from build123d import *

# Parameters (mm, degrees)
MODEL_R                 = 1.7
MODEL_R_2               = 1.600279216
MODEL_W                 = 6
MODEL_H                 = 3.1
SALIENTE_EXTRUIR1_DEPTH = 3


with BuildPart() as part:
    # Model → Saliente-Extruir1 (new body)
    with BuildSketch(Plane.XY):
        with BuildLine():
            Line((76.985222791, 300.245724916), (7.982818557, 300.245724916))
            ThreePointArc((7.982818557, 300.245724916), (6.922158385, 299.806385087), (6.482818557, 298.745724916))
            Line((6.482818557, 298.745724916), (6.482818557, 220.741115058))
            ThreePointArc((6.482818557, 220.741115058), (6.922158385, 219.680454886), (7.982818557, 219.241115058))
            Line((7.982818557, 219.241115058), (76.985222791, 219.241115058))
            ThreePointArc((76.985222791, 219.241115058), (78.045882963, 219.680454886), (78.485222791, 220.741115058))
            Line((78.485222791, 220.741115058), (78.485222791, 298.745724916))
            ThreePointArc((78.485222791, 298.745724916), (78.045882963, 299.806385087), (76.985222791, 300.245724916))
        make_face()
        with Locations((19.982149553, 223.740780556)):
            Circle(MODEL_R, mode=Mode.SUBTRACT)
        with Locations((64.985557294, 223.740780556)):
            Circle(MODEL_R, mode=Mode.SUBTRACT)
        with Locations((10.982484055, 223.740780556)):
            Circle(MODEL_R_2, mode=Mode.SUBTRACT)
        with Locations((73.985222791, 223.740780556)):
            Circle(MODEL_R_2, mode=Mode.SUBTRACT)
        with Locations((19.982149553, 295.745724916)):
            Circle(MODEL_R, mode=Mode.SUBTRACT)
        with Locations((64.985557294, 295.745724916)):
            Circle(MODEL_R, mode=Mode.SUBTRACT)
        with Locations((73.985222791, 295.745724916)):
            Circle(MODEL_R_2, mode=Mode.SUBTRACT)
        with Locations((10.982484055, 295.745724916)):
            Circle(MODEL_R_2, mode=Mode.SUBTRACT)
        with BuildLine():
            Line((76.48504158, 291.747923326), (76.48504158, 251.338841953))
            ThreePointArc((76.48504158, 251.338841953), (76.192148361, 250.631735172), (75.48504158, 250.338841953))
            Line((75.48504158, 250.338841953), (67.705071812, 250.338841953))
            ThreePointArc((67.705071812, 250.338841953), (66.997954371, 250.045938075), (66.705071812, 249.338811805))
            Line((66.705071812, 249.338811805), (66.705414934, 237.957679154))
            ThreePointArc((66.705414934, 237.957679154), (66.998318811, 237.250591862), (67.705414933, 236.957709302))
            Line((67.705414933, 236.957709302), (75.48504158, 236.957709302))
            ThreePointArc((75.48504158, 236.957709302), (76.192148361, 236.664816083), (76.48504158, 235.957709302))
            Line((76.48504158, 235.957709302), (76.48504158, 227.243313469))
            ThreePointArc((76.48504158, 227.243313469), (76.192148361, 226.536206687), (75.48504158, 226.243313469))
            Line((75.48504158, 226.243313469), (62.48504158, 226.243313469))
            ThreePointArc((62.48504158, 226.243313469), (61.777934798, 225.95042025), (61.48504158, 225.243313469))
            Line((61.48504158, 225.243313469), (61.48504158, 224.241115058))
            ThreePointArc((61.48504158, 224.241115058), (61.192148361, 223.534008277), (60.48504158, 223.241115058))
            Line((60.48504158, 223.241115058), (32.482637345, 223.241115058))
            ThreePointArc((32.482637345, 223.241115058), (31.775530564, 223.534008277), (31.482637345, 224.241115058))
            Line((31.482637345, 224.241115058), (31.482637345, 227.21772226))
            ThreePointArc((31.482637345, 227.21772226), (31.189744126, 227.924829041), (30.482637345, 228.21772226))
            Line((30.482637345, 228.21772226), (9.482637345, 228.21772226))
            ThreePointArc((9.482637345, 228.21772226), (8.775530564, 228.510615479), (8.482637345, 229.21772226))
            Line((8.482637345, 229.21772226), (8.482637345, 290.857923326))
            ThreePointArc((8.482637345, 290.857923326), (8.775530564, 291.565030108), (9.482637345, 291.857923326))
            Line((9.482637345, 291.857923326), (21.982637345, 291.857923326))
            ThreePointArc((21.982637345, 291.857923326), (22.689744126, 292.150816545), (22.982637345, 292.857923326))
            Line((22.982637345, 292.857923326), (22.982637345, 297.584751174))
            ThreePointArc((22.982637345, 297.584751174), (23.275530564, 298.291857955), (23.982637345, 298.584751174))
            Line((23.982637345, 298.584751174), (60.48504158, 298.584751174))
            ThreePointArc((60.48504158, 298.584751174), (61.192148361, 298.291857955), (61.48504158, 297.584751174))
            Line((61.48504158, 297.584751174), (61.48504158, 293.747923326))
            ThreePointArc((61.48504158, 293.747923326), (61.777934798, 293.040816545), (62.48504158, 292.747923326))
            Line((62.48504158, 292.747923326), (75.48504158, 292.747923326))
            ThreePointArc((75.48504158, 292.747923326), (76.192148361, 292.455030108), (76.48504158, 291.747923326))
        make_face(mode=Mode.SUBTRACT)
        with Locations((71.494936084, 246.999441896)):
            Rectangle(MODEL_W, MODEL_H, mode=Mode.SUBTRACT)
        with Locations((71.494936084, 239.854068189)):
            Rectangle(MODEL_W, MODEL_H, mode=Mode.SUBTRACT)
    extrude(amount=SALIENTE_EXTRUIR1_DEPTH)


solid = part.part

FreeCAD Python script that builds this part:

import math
import FreeCAD as App
import Part
import Sketcher

V = App.Vector
Q = App.Units.Quantity


def add_polygon(sketch, points):
    """Adds a closed chain of lines whose ends are joined by coincident constraints."""
    first, n = sketch.GeometryCount, len(points)
    for a, b in zip(points, points[1:] + points[:1]):
        sketch.addGeometry(Part.LineSegment(App.Vector(*a, 0), App.Vector(*b, 0)), False)
    for i in range(n):
        sketch.addConstraint(Sketcher.Constraint("Coincident", first + i, 2, first + (i + 1) % n, 1))

doc = App.newDocument("Part")
body = doc.addObject("PartDesign::Body", "Body")

# Sketch on XY plane
sketch1 = body.newObject("Sketcher::SketchObject", "Sketch")
sketch1.AttachmentSupport = (doc.getObject("XY_Plane"), [""])
sketch1.MapMode = "FlatFace"
sketch1.addGeometry(Part.LineSegment(V(76.985223, 300.245725, 0), V(7.982819, 300.245725, 0)), False)  # 0
sketch1.addGeometry(Part.ArcOfCircle(Part.Circle(V(7.982819, 298.745725, 0), V(0, 0, 1), 1.5), math.radians(90), math.radians(180)), False)  # 1
sketch1.addGeometry(Part.LineSegment(V(6.482819, 298.745725, 0), V(6.482819, 220.741115, 0)), False)  # 2
sketch1.addGeometry(Part.ArcOfCircle(Part.Circle(V(7.982819, 220.741115, 0), V(0, 0, 1), 1.5), math.radians(180), math.radians(270)), False)  # 3
sketch1.addGeometry(Part.LineSegment(V(7.982819, 219.241115, 0), V(76.985223, 219.241115, 0)), False)  # 4
sketch1.addGeometry(Part.ArcOfCircle(Part.Circle(V(76.985223, 220.741115, 0), V(0, 0, 1), 1.5), math.radians(-90), math.radians(0)), False)  # 5
sketch1.addGeometry(Part.LineSegment(V(78.485223, 220.741115, 0), V(78.485223, 298.745725, 0)), False)  # 6
sketch1.addGeometry(Part.ArcOfCircle(Part.Circle(V(76.985223, 298.745725, 0), V(0, 0, 1), 1.5), math.radians(0), math.radians(90)), False)  # 7
sketch1.addGeometry(Part.Circle(V(10.982484, 223.740781, 0), V(0, 0, 1), 1.600279), False)  # 8
sketch1.addGeometry(Part.Circle(V(19.98215, 223.740781, 0), V(0, 0, 1), 1.7), False)  # 9
sketch1.addGeometry(Part.Circle(V(64.985557, 223.740781, 0), V(0, 0, 1), 1.7), False)  # 10
sketch1.addGeometry(Part.Circle(V(73.985223, 223.740781, 0), V(0, 0, 1), 1.600279), False)  # 11
add_polygon(sketch1, [(74.494936, 238.304068), (68.494936, 238.304068), (68.494936, 241.404068), (74.494936, 241.404068)])  # lines 12-15
add_polygon(sketch1, [(74.494936, 245.449442), (68.494936, 245.449442), (68.494936, 248.549442), (74.494936, 248.549442)])  # lines 16-19
sketch1.addGeometry(Part.Circle(V(10.982484, 295.745725, 0), V(0, 0, 1), 1.600279), False)  # 20
sketch1.addGeometry(Part.Circle(V(19.98215, 295.745725, 0), V(0, 0, 1), 1.7), False)  # 21
sketch1.addGeometry(Part.ArcOfCircle(Part.Circle(V(75.485042, 291.747923, 0), V(0, 0, 1), 1), math.radians(0), math.radians(90)), False)  # 22
sketch1.addGeometry(Part.LineSegment(V(76.485042, 291.747923, 0), V(76.485042, 251.338842, 0)), False)  # 23
sketch1.addGeometry(Part.ArcOfCircle(Part.Circle(V(75.485042, 251.338842, 0), V(0, 0, 1), 1), math.radians(-90), math.radians(0)), False)  # 24
sketch1.addGeometry(Part.LineSegment(V(75.485042, 250.338842, 0), V(67.705072, 250.338842, 0)), False)  # 25
sketch1.addGeometry(Part.ArcOfCircle(Part.Circle(V(67.705072, 249.338842, 0), V(0, 0, 1), 1), math.radians(90), math.radians(180.001727)), False)  # 26
sketch1.addGeometry(Part.LineSegment(V(66.705072, 249.338812, 0), V(66.705415, 237.957679, 0)), False)  # 27
sketch1.addGeometry(Part.ArcOfCircle(Part.Circle(V(67.705415, 237.957709, 0), V(0, 0, 1), 1), math.radians(-179.998273), math.radians(-90)), False)  # 28
sketch1.addGeometry(Part.LineSegment(V(67.705415, 236.957709, 0), V(75.485042, 236.957709, 0)), False)  # 29
sketch1.addGeometry(Part.ArcOfCircle(Part.Circle(V(75.485042, 235.957709, 0), V(0, 0, 1), 1), math.radians(0), math.radians(90)), False)  # 30
sketch1.addGeometry(Part.LineSegment(V(76.485042, 235.957709, 0), V(76.485042, 227.243313, 0)), False)  # 31
sketch1.addGeometry(Part.ArcOfCircle(Part.Circle(V(75.485042, 227.243313, 0), V(0, 0, 1), 1), math.radians(-90), math.radians(0)), False)  # 32
sketch1.addGeometry(Part.LineSegment(V(75.485042, 226.243313, 0), V(62.485042, 226.243313, 0)), False)  # 33
sketch1.addGeometry(Part.ArcOfCircle(Part.Circle(V(62.485042, 225.243313, 0), V(0, 0, 1), 1), math.radians(90), math.radians(180)), False)  # 34
sketch1.addGeometry(Part.LineSegment(V(61.485042, 225.243313, 0), V(61.485042, 224.241115, 0)), False)  # 35
sketch1.addGeometry(Part.ArcOfCircle(Part.Circle(V(60.485042, 224.241115, 0), V(0, 0, 1), 1), math.radians(-90), math.radians(0)), False)  # 36
sketch1.addGeometry(Part.LineSegment(V(60.485042, 223.241115, 0), V(32.482637, 223.241115, 0)), False)  # 37
sketch1.addGeometry(Part.ArcOfCircle(Part.Circle(V(32.482637, 224.241115, 0), V(0, 0, 1), 1), math.radians(-180), math.radians(-90)), False)  # 38
sketch1.addGeometry(Part.LineSegment(V(31.482637, 224.241115, 0), V(31.482637, 227.217722, 0)), False)  # 39
sketch1.addGeometry(Part.ArcOfCircle(Part.Circle(V(30.482637, 227.217722, 0), V(0, 0, 1), 1), math.radians(0), math.radians(90)), False)  # 40
sketch1.addGeometry(Part.LineSegment(V(30.482637, 228.217722, 0), V(9.482637, 228.217722, 0)), False)  # 41
sketch1.addGeometry(Part.ArcOfCircle(Part.Circle(V(9.482637, 229.217722, 0), V(0, 0, 1), 1), math.radians(-180), math.radians(-90)), False)  # 42
sketch1.addGeometry(Part.LineSegment(V(8.482637, 229.217722, 0), V(8.482637, 290.857923, 0)), False)  # 43
sketch1.addGeometry(Part.ArcOfCircle(Part.Circle(V(9.482637, 290.857923, 0), V(0, 0, 1), 1), math.radians(90), math.radians(180)), False)  # 44
sketch1.addGeometry(Part.LineSegment(V(9.482637, 291.857923, 0), V(21.982637, 291.857923, 0)), False)  # 45
sketch1.addGeometry(Part.ArcOfCircle(Part.Circle(V(21.982637, 292.857923, 0), V(0, 0, 1), 1), math.radians(-90), math.radians(0)), False)  # 46
sketch1.addGeometry(Part.LineSegment(V(22.982637, 292.857923, 0), V(22.982637, 297.584751, 0)), False)  # 47
sketch1.addGeometry(Part.ArcOfCircle(Part.Circle(V(23.982637, 297.584751, 0), V(0, 0, 1), 1), math.radians(90), math.radians(180)), False)  # 48
sketch1.addGeometry(Part.LineSegment(V(23.982637, 298.584751, 0), V(60.485042, 298.584751, 0)), False)  # 49
sketch1.addGeometry(Part.ArcOfCircle(Part.Circle(V(60.485042, 297.584751, 0), V(0, 0, 1), 1), math.radians(0), math.radians(90)), False)  # 50
sketch1.addGeometry(Part.LineSegment(V(61.485042, 297.584751, 0), V(61.485042, 293.747923, 0)), False)  # 51
sketch1.addGeometry(Part.ArcOfCircle(Part.Circle(V(62.485042, 293.747923, 0), V(0, 0, 1), 1), math.radians(180), math.radians(270)), False)  # 52
sketch1.addGeometry(Part.LineSegment(V(62.485042, 292.747923, 0), V(75.485042, 292.747923, 0)), False)  # 53
sketch1.addGeometry(Part.Circle(V(64.985557, 295.745725, 0), V(0, 0, 1), 1.7), False)  # 54
sketch1.addGeometry(Part.Circle(V(73.985223, 295.745725, 0), V(0, 0, 1), 1.600279), False)  # 55
sketch1.addConstraint(Sketcher.Constraint("Tangent", 0, 2, 1, 1))
sketch1.addConstraint(Sketcher.Constraint("Tangent", 1, 2, 2, 1))
sketch1.addConstraint(Sketcher.Constraint("Tangent", 2, 2, 3, 1))
sketch1.addConstraint(Sketcher.Constraint("Tangent", 3, 2, 4, 1))
sketch1.addConstraint(Sketcher.Constraint("Tangent", 4, 2, 5, 1))
sketch1.addConstraint(Sketcher.Constraint("Tangent", 5, 2, 6, 1))
sketch1.addConstraint(Sketcher.Constraint("Tangent", 6, 2, 7, 1))
sketch1.addConstraint(Sketcher.Constraint("Tangent", 7, 2, 0, 1))
sketch1.addConstraint(Sketcher.Constraint("Tangent", 22, 1, 23, 1))
sketch1.addConstraint(Sketcher.Constraint("Tangent", 23, 2, 24, 2))
sketch1.addConstraint(Sketcher.Constraint("Tangent", 24, 1, 25, 1))
sketch1.addConstraint(Sketcher.Constraint("Tangent", 25, 2, 26, 1))
sketch1.addConstraint(Sketcher.Constraint("Tangent", 26, 2, 27, 1))
sketch1.addConstraint(Sketcher.Constraint("Tangent", 27, 2, 28, 1))
sketch1.addConstraint(Sketcher.Constraint("Tangent", 28, 2, 29, 1))
sketch1.addConstraint(Sketcher.Constraint("Tangent", 29, 2, 30, 2))
sketch1.addConstraint(Sketcher.Constraint("Tangent", 30, 1, 31, 1))
sketch1.addConstraint(Sketcher.Constraint("Tangent", 31, 2, 32, 2))
sketch1.addConstraint(Sketcher.Constraint("Tangent", 32, 1, 33, 1))
sketch1.addConstraint(Sketcher.Constraint("Tangent", 33, 2, 34, 1))
sketch1.addConstraint(Sketcher.Constraint("Tangent", 34, 2, 35, 1))
sketch1.addConstraint(Sketcher.Constraint("Tangent", 35, 2, 36, 2))
sketch1.addConstraint(Sketcher.Constraint("Tangent", 36, 1, 37, 1))
sketch1.addConstraint(Sketcher.Constraint("Tangent", 37, 2, 38, 2))
sketch1.addConstraint(Sketcher.Constraint("Tangent", 38, 1, 39, 1))
sketch1.addConstraint(Sketcher.Constraint("Tangent", 39, 2, 40, 1))
sketch1.addConstraint(Sketcher.Constraint("Tangent", 40, 2, 41, 1))
sketch1.addConstraint(Sketcher.Constraint("Tangent", 41, 2, 42, 2))
sketch1.addConstraint(Sketcher.Constraint("Tangent", 42, 1, 43, 1))
sketch1.addConstraint(Sketcher.Constraint("Tangent", 43, 2, 44, 2))
sketch1.addConstraint(Sketcher.Constraint("Tangent", 44, 1, 45, 1))
sketch1.addConstraint(Sketcher.Constraint("Tangent", 45, 2, 46, 1))
sketch1.addConstraint(Sketcher.Constraint("Tangent", 46, 2, 47, 1))
sketch1.addConstraint(Sketcher.Constraint("Tangent", 47, 2, 48, 2))
sketch1.addConstraint(Sketcher.Constraint("Tangent", 48, 1, 49, 1))
sketch1.addConstraint(Sketcher.Constraint("Tangent", 49, 2, 50, 2))
sketch1.addConstraint(Sketcher.Constraint("Tangent", 50, 1, 51, 1))
sketch1.addConstraint(Sketcher.Constraint("Tangent", 51, 2, 52, 1))
sketch1.addConstraint(Sketcher.Constraint("Tangent", 52, 2, 53, 1))
sketch1.addConstraint(Sketcher.Constraint("Tangent", 53, 2, 22, 2))
sketch1.addConstraint(Sketcher.Constraint("Horizontal", 0))
sketch1.addConstraint(Sketcher.Constraint("Vertical", 2))
sketch1.addConstraint(Sketcher.Constraint("Horizontal", 4))
sketch1.addConstraint(Sketcher.Constraint("Vertical", 6))
sketch1.addConstraint(Sketcher.Constraint("Horizontal", 12))
sketch1.addConstraint(Sketcher.Constraint("Vertical", 13))
sketch1.addConstraint(Sketcher.Constraint("Horizontal", 14))
sketch1.addConstraint(Sketcher.Constraint("Vertical", 15))
sketch1.addConstraint(Sketcher.Constraint("Horizontal", 16))
sketch1.addConstraint(Sketcher.Constraint("Vertical", 17))
sketch1.addConstraint(Sketcher.Constraint("Horizontal", 18))
sketch1.addConstraint(Sketcher.Constraint("Vertical", 19))
sketch1.addConstraint(Sketcher.Constraint("Vertical", 23))
sketch1.addConstraint(Sketcher.Constraint("Horizontal", 25))
sketch1.addConstraint(Sketcher.Constraint("Horizontal", 29))
sketch1.addConstraint(Sketcher.Constraint("Vertical", 31))
sketch1.addConstraint(Sketcher.Constraint("Horizontal", 33))
sketch1.addConstraint(Sketcher.Constraint("Vertical", 35))
sketch1.addConstraint(Sketcher.Constraint("Horizontal", 37))
sketch1.addConstraint(Sketcher.Constraint("Vertical", 39))
sketch1.addConstraint(Sketcher.Constraint("Horizontal", 41))
sketch1.addConstraint(Sketcher.Constraint("Vertical", 43))
sketch1.addConstraint(Sketcher.Constraint("Horizontal", 45))
sketch1.addConstraint(Sketcher.Constraint("Vertical", 47))
sketch1.addConstraint(Sketcher.Constraint("Horizontal", 49))
sketch1.addConstraint(Sketcher.Constraint("Vertical", 51))
sketch1.addConstraint(Sketcher.Constraint("Horizontal", 53))
sketch1.addConstraint(Sketcher.Constraint("Equal", 1, 3))
sketch1.addConstraint(Sketcher.Constraint("Equal", 3, 5))
sketch1.addConstraint(Sketcher.Constraint("Equal", 5, 7))
sketch1.addConstraint(Sketcher.Constraint("Equal", 9, 10))
sketch1.addConstraint(Sketcher.Constraint("Equal", 8, 11))
sketch1.addConstraint(Sketcher.Constraint("Equal", 11, 20))
sketch1.addConstraint(Sketcher.Constraint("Equal", 10, 21))
sketch1.addConstraint(Sketcher.Constraint("Equal", 22, 24))
sketch1.addConstraint(Sketcher.Constraint("Equal", 24, 26))
sketch1.addConstraint(Sketcher.Constraint("Equal", 26, 28))
sketch1.addConstraint(Sketcher.Constraint("Equal", 28, 30))
sketch1.addConstraint(Sketcher.Constraint("Equal", 30, 32))
sketch1.addConstraint(Sketcher.Constraint("Equal", 32, 34))
sketch1.addConstraint(Sketcher.Constraint("Equal", 34, 36))
sketch1.addConstraint(Sketcher.Constraint("Equal", 36, 38))
sketch1.addConstraint(Sketcher.Constraint("Equal", 38, 40))
sketch1.addConstraint(Sketcher.Constraint("Equal", 40, 42))
sketch1.addConstraint(Sketcher.Constraint("Equal", 42, 44))
sketch1.addConstraint(Sketcher.Constraint("Equal", 44, 46))
sketch1.addConstraint(Sketcher.Constraint("Equal", 46, 48))
sketch1.addConstraint(Sketcher.Constraint("Equal", 48, 50))
sketch1.addConstraint(Sketcher.Constraint("Equal", 50, 52))
sketch1.addConstraint(Sketcher.Constraint("Equal", 21, 54))
sketch1.addConstraint(Sketcher.Constraint("Equal", 20, 55))
sketch1.addConstraint(Sketcher.Constraint("Horizontal", 8, 3, 9, 3))
sketch1.addConstraint(Sketcher.Constraint("Horizontal", 9, 3, 10, 3))
sketch1.addConstraint(Sketcher.Constraint("Horizontal", 10, 3, 11, 3))
sketch1.addConstraint(Sketcher.Constraint("Horizontal", 20, 3, 21, 3))
sketch1.addConstraint(Sketcher.Constraint("Horizontal", 21, 3, 54, 3))
sketch1.addConstraint(Sketcher.Constraint("Horizontal", 54, 3, 55, 3))
sketch1.addConstraint(Sketcher.Constraint("Vertical", 8, 3, 20, 3))
sketch1.addConstraint(Sketcher.Constraint("Vertical", 9, 3, 21, 3))
sketch1.addConstraint(Sketcher.Constraint("Vertical", 24, 3, 30, 3))
sketch1.addConstraint(Sketcher.Constraint("Vertical", 36, 3, 50, 3))
sketch1.addConstraint(Sketcher.Constraint("Vertical", 10, 3, 54, 3))
sketch1.addConstraint(Sketcher.Constraint("Vertical", 11, 3, 55, 3))
sketch1.addConstraint(Sketcher.Constraint("Vertical", 13, 2, 16, 2))
sketch1.addConstraint(Sketcher.Constraint("Vertical", 15, 2, 18, 2))
sketch1.addConstraint(Sketcher.Constraint("Equal", 15, 17))
sketch1.addConstraint(Sketcher.Constraint("Radius", 22, Q("1 mm")))
sketch1.addConstraint(Sketcher.Constraint("Diameter", 9, Q("3.4 mm")))
sketch1.addConstraint(Sketcher.Constraint("Radius", 1, Q("1.5 mm")))
sketch1.addConstraint(Sketcher.Constraint("DistanceX", 12, 2, 12, 1, Q("6 mm")))
sketch1.addConstraint(Sketcher.Constraint("DistanceX", 33, 2, 33, 1, Q("13 mm")))
sketch1.addConstraint(Sketcher.Constraint("DistanceX", 41, 2, 41, 1, Q("21 mm")))
sketch1.addConstraint(Sketcher.Constraint("DistanceX", 45, 1, 45, 2, Q("12.5 mm")))
sketch1.addConstraint(Sketcher.Constraint("DistanceY", 13, 1, 13, 2, Q("3.1 mm")))
sketch1.addConstraint(Sketcher.Constraint("Diameter", 8, Q("3.200558 mm")))
sketch1.addConstraint(Sketcher.Constraint("DistanceY", 35, 2, 35, 1, Q("1.002198 mm")))
sketch1.addConstraint(Sketcher.Constraint("DistanceY", 43, 1, 43, 2, Q("61.640201 mm")))
sketch1.addConstraint(Sketcher.Constraint("DistanceX", 25, 2, 25, 1, Q("7.77997 mm")))
sketch1.addConstraint(Sketcher.Constraint("DistanceY", 2, 2, 2, 1, Q("78.00461 mm")))
sketch1.addConstraint(Sketcher.Constraint("DistanceY", 23, 2, 23, 1, Q("40.409081 mm")))
sketch1.addConstraint(Sketcher.Constraint("DistanceX", 0, 2, 0, 1, Q("69.002404 mm")))
sketch1.addConstraint(Sketcher.Constraint("DistanceX", 29, 1, 29, 2, Q("7.779627 mm")))
sketch1.addConstraint(Sketcher.Constraint("DistanceX", 37, 2, 37, 1, Q("28.002404 mm")))
sketch1.addConstraint(Sketcher.Constraint("DistanceY", 31, 2, 31, 1, Q("8.714396 mm")))
sketch1.addConstraint(Sketcher.Constraint("DistanceY", 39, 1, 39, 2, Q("2.976607 mm")))
sketch1.addConstraint(Sketcher.Constraint("DistanceY", 47, 1, 47, 2, Q("4.726828 mm")))
sketch1.addConstraint(Sketcher.Constraint("DistanceY", 51, 2, 51, 1, Q("3.836828 mm")))
sketch1.addConstraint(Sketcher.Constraint("DistanceX", -1, 1, 1, 3, Q("7.982819 mm")))
sketch1.addConstraint(Sketcher.Constraint("DistanceY", -1, 1, 8, 3, Q("223.740781 mm")))
sketch1.addConstraint(Sketcher.Constraint("DistanceX", -1, 1, 9, 3, Q("19.98215 mm")))
sketch1.addConstraint(Sketcher.Constraint("DistanceX", -1, 1, 22, 3, Q("75.485042 mm")))
sketch1.addConstraint(Sketcher.Constraint("DistanceY", -1, 1, 24, 3, Q("251.338842 mm")))
sketch1.addConstraint(Sketcher.Constraint("DistanceY", -1, 1, 12, 2, Q("238.304068 mm")))
sketch1.addConstraint(Sketcher.Constraint("DistanceY", -1, 1, 16, 2, Q("245.449442 mm")))
sketch1.addConstraint(Sketcher.Constraint("DistanceY", -1, 1, 1, 3, Q("298.745725 mm")))
sketch1.addConstraint(Sketcher.Constraint("DistanceX", -1, 1, 8, 3, Q("10.982484 mm")))
sketch1.addConstraint(Sketcher.Constraint("DistanceX", -1, 1, 10, 3, Q("64.985557 mm")))
sketch1.addConstraint(Sketcher.Constraint("DistanceX", -1, 1, 11, 3, Q("73.985223 mm")))
sketch1.addConstraint(Sketcher.Constraint("DistanceY", -1, 1, 20, 3, Q("295.745725 mm")))
sketch1.addConstraint(Sketcher.Constraint("DistanceX", -1, 1, 12, 2, Q("68.494936 mm")))
pad1 = body.newObject("PartDesign::Pad", "Pad")
pad1.Profile = sketch1
pad1.Length = 3

doc.recompute()
